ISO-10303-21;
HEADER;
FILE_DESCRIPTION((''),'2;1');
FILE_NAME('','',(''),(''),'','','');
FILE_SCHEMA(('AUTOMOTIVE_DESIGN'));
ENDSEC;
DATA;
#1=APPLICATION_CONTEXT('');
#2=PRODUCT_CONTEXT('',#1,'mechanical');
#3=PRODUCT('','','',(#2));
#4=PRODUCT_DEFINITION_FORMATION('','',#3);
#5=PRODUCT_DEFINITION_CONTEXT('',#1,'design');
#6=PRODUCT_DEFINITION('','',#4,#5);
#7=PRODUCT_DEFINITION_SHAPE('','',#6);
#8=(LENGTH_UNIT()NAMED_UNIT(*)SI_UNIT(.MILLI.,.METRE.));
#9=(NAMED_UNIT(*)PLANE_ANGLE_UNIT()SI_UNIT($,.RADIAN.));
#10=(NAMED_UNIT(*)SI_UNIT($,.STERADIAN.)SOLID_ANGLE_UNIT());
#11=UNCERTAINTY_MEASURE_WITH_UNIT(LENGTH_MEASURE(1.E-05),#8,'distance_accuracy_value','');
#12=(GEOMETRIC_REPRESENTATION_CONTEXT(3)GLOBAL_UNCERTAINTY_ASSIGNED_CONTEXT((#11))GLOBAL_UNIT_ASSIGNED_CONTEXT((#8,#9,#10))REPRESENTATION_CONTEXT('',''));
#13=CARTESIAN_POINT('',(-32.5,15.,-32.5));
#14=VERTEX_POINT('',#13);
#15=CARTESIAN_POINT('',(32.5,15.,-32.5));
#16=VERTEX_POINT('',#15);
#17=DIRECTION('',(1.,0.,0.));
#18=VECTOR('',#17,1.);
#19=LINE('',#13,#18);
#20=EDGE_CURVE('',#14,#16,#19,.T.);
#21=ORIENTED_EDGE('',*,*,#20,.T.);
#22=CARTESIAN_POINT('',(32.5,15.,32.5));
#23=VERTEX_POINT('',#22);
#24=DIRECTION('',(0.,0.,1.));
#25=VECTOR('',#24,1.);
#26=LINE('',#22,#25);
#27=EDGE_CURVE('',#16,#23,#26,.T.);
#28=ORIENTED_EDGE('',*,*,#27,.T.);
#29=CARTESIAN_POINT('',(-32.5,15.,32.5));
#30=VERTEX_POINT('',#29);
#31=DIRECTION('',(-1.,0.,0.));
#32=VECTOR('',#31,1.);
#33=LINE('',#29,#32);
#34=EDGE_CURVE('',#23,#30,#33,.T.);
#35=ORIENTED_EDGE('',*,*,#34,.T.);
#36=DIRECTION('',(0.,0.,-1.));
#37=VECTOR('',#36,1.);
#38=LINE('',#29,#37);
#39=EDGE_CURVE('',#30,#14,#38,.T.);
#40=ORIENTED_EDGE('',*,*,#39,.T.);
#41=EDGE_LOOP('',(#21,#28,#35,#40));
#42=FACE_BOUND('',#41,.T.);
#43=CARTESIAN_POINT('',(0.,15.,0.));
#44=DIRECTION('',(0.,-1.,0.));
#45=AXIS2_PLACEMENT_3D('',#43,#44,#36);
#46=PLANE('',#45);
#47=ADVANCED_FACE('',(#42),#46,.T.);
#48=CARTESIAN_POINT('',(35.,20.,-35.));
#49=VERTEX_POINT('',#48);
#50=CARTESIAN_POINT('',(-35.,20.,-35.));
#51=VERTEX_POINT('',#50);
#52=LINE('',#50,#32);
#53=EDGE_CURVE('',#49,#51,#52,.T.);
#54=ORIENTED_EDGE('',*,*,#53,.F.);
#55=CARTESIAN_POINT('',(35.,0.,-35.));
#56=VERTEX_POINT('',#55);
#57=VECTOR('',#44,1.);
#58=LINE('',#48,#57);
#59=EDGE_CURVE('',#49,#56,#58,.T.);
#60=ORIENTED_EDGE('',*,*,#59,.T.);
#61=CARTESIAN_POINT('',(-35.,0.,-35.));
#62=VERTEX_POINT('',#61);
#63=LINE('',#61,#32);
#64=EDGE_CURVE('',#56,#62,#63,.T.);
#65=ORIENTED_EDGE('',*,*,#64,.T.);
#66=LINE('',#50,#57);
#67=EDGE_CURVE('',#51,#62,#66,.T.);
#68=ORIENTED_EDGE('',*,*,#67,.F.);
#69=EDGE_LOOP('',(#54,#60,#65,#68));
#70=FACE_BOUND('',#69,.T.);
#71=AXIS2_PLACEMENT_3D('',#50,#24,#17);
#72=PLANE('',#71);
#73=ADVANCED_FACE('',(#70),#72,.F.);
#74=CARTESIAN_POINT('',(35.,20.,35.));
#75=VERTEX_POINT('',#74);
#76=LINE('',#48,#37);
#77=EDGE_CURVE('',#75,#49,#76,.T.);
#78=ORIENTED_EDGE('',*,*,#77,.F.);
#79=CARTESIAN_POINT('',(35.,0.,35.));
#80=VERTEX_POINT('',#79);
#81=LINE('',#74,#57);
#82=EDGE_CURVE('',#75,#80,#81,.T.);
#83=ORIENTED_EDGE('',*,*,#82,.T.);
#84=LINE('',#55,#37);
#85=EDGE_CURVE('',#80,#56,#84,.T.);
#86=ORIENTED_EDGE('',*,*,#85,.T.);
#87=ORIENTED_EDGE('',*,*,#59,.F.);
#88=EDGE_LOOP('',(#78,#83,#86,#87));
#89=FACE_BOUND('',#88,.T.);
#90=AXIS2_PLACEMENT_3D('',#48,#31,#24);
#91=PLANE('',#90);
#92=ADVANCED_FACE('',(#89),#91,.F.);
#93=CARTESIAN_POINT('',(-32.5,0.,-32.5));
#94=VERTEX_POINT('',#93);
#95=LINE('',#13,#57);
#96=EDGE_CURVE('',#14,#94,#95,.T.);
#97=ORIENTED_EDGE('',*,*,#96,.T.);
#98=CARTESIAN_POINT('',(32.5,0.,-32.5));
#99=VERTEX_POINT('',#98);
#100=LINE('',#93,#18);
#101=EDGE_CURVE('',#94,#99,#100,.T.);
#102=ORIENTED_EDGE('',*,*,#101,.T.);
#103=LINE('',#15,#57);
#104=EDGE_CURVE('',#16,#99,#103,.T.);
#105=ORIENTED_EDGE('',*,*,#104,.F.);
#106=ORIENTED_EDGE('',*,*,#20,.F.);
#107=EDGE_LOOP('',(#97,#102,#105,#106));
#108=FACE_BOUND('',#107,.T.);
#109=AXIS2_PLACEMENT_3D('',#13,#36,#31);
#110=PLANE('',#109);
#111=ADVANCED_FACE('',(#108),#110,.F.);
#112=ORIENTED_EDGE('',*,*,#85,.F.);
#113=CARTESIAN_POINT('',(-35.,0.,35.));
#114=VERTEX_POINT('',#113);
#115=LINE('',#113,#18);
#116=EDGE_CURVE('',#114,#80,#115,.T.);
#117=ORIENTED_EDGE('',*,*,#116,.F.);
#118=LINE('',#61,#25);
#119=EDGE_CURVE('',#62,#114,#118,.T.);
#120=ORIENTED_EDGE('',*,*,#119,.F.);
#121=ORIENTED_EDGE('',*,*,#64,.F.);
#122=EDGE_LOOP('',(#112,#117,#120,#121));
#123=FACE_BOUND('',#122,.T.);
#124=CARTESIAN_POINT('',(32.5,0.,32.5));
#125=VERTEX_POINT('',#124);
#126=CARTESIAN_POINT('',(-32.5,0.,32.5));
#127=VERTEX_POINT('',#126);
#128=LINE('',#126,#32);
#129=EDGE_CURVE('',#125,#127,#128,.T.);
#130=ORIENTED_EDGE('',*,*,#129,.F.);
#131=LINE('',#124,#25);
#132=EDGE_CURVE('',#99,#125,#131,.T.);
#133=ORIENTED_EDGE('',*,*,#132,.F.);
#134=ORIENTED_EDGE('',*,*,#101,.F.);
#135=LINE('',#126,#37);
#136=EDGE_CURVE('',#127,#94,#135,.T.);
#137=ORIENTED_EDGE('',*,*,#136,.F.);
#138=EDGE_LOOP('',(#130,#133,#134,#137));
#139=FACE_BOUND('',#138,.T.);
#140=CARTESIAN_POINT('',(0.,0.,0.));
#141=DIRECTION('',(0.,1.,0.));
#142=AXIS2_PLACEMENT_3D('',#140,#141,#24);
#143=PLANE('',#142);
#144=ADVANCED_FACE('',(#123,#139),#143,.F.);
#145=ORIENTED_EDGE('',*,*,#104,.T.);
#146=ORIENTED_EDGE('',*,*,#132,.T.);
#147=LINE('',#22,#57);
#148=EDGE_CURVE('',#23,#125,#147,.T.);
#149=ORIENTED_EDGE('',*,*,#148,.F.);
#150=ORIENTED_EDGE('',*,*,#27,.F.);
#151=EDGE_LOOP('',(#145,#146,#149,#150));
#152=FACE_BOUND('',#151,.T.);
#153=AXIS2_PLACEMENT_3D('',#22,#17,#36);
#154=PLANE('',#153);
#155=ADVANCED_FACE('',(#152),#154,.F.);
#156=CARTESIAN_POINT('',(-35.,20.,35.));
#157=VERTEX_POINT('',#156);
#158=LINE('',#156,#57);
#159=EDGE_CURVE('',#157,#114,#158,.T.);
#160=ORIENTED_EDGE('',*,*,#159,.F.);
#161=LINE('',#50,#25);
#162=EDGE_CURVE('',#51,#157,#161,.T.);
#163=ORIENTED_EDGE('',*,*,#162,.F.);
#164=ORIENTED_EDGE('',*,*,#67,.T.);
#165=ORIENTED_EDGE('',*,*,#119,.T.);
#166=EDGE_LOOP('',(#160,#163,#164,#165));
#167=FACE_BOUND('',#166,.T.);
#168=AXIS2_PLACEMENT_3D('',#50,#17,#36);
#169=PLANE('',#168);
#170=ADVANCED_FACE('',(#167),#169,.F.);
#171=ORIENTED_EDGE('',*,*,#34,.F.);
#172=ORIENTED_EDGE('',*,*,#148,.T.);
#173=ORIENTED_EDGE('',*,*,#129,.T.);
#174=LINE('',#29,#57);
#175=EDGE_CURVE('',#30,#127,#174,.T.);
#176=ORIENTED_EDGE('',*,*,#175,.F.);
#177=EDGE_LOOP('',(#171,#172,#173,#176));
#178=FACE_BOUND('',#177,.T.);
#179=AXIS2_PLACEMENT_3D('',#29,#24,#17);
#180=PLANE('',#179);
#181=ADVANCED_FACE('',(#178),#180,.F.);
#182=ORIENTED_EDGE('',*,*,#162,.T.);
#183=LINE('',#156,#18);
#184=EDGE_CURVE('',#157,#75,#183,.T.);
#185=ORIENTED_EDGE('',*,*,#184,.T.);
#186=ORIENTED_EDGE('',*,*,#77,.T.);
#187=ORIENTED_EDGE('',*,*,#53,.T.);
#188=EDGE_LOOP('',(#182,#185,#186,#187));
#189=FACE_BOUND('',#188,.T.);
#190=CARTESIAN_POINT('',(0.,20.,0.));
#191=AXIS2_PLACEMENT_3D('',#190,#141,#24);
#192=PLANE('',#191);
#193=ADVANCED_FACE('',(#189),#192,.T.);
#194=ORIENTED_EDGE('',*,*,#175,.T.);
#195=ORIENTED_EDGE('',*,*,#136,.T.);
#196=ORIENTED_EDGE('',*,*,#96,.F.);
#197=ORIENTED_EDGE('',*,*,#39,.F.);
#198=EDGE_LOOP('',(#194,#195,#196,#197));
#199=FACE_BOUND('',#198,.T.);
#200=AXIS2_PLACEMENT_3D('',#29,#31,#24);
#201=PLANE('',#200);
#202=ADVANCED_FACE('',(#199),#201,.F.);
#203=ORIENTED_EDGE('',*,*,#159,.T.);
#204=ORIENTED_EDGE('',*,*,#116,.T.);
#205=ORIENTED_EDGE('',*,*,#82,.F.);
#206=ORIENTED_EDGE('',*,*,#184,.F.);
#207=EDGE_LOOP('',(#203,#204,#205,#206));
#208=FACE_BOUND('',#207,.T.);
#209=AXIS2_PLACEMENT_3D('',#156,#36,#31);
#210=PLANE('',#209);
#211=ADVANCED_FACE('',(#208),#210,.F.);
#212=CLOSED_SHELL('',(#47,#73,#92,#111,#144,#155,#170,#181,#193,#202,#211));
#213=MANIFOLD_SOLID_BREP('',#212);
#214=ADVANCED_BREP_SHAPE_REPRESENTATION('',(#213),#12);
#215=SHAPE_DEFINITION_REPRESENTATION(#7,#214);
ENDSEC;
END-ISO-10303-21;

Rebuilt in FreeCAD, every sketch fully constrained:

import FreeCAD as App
import Part
import Sketcher
from FreeCAD import Vector


def add_polygon(sketch, points):
    """Adds a closed chain of lines whose ends are joined by coincident constraints."""
    first, n = sketch.GeometryCount, len(points)
    for a, b in zip(points, points[1:] + points[:1]):
        sketch.addGeometry(Part.LineSegment(App.Vector(*a, 0), App.Vector(*b, 0)), False)
    for i in range(n):
        sketch.addConstraint(Sketcher.Constraint("Coincident", first + i, 2, first + (i + 1) % n, 1))

doc = App.newDocument("Part")
body = doc.addObject("PartDesign::Body", "Body")

sketch1 = body.newObject("Sketcher::SketchObject", "Sketch")
sketch1.AttachmentSupport = (doc.getObject("XZ_Plane"), [""])
sketch1.MapMode = "FlatFace"
add_polygon(sketch1, [(-35, -35), (-35, 35), (35, 35), (35, -35)])
sketch1.addConstraint([
    Sketcher.Constraint("Vertical", 0),
    Sketcher.Constraint("Horizontal", 1),
    Sketcher.Constraint("Vertical", 2),
    Sketcher.Constraint("Horizontal", 3),
    Sketcher.Constraint("Symmetric", 0, 2, 2, 2, -1, 1),
    Sketcher.Constraint("Equal", 3, 0),
    Sketcher.Constraint("DistanceX", 1, 1, 1, 2, 70.0),
])
pad1 = body.newObject("PartDesign::Pad", "Pad")
pad1.Profile = sketch1
pad1.Length = 20
pad1.Reversed = True

sketch2 = body.newObject("Sketcher::SketchObject", "Sketch001")
sketch2.AttachmentSupport = (doc.getObject("XZ_Plane"), [""])
sketch2.MapMode = "FlatFace"
add_polygon(sketch2, [(-32, 32), (-32, -32), (32, -32), (32, 32)])
sketch2.addConstraint([
    Sketcher.Constraint("Vertical", 0),
    Sketcher.Constraint("Horizontal", 1),
    Sketcher.Constraint("Vertical", 2),
    Sketcher.Constraint("Horizontal", 3),
    Sketcher.Constraint("Symmetric", 0, 2, 2, 2, -1, 1),
    Sketcher.Constraint("Equal", 3, 0),
    Sketcher.Constraint("DistanceX", 1, 1, 1, 2, 65.0),
])
pocket1 = body.newObject("PartDesign::Pocket", "Pocket")
pocket1.Profile = sketch2
pocket1.Length = 15

doc.recompute()
